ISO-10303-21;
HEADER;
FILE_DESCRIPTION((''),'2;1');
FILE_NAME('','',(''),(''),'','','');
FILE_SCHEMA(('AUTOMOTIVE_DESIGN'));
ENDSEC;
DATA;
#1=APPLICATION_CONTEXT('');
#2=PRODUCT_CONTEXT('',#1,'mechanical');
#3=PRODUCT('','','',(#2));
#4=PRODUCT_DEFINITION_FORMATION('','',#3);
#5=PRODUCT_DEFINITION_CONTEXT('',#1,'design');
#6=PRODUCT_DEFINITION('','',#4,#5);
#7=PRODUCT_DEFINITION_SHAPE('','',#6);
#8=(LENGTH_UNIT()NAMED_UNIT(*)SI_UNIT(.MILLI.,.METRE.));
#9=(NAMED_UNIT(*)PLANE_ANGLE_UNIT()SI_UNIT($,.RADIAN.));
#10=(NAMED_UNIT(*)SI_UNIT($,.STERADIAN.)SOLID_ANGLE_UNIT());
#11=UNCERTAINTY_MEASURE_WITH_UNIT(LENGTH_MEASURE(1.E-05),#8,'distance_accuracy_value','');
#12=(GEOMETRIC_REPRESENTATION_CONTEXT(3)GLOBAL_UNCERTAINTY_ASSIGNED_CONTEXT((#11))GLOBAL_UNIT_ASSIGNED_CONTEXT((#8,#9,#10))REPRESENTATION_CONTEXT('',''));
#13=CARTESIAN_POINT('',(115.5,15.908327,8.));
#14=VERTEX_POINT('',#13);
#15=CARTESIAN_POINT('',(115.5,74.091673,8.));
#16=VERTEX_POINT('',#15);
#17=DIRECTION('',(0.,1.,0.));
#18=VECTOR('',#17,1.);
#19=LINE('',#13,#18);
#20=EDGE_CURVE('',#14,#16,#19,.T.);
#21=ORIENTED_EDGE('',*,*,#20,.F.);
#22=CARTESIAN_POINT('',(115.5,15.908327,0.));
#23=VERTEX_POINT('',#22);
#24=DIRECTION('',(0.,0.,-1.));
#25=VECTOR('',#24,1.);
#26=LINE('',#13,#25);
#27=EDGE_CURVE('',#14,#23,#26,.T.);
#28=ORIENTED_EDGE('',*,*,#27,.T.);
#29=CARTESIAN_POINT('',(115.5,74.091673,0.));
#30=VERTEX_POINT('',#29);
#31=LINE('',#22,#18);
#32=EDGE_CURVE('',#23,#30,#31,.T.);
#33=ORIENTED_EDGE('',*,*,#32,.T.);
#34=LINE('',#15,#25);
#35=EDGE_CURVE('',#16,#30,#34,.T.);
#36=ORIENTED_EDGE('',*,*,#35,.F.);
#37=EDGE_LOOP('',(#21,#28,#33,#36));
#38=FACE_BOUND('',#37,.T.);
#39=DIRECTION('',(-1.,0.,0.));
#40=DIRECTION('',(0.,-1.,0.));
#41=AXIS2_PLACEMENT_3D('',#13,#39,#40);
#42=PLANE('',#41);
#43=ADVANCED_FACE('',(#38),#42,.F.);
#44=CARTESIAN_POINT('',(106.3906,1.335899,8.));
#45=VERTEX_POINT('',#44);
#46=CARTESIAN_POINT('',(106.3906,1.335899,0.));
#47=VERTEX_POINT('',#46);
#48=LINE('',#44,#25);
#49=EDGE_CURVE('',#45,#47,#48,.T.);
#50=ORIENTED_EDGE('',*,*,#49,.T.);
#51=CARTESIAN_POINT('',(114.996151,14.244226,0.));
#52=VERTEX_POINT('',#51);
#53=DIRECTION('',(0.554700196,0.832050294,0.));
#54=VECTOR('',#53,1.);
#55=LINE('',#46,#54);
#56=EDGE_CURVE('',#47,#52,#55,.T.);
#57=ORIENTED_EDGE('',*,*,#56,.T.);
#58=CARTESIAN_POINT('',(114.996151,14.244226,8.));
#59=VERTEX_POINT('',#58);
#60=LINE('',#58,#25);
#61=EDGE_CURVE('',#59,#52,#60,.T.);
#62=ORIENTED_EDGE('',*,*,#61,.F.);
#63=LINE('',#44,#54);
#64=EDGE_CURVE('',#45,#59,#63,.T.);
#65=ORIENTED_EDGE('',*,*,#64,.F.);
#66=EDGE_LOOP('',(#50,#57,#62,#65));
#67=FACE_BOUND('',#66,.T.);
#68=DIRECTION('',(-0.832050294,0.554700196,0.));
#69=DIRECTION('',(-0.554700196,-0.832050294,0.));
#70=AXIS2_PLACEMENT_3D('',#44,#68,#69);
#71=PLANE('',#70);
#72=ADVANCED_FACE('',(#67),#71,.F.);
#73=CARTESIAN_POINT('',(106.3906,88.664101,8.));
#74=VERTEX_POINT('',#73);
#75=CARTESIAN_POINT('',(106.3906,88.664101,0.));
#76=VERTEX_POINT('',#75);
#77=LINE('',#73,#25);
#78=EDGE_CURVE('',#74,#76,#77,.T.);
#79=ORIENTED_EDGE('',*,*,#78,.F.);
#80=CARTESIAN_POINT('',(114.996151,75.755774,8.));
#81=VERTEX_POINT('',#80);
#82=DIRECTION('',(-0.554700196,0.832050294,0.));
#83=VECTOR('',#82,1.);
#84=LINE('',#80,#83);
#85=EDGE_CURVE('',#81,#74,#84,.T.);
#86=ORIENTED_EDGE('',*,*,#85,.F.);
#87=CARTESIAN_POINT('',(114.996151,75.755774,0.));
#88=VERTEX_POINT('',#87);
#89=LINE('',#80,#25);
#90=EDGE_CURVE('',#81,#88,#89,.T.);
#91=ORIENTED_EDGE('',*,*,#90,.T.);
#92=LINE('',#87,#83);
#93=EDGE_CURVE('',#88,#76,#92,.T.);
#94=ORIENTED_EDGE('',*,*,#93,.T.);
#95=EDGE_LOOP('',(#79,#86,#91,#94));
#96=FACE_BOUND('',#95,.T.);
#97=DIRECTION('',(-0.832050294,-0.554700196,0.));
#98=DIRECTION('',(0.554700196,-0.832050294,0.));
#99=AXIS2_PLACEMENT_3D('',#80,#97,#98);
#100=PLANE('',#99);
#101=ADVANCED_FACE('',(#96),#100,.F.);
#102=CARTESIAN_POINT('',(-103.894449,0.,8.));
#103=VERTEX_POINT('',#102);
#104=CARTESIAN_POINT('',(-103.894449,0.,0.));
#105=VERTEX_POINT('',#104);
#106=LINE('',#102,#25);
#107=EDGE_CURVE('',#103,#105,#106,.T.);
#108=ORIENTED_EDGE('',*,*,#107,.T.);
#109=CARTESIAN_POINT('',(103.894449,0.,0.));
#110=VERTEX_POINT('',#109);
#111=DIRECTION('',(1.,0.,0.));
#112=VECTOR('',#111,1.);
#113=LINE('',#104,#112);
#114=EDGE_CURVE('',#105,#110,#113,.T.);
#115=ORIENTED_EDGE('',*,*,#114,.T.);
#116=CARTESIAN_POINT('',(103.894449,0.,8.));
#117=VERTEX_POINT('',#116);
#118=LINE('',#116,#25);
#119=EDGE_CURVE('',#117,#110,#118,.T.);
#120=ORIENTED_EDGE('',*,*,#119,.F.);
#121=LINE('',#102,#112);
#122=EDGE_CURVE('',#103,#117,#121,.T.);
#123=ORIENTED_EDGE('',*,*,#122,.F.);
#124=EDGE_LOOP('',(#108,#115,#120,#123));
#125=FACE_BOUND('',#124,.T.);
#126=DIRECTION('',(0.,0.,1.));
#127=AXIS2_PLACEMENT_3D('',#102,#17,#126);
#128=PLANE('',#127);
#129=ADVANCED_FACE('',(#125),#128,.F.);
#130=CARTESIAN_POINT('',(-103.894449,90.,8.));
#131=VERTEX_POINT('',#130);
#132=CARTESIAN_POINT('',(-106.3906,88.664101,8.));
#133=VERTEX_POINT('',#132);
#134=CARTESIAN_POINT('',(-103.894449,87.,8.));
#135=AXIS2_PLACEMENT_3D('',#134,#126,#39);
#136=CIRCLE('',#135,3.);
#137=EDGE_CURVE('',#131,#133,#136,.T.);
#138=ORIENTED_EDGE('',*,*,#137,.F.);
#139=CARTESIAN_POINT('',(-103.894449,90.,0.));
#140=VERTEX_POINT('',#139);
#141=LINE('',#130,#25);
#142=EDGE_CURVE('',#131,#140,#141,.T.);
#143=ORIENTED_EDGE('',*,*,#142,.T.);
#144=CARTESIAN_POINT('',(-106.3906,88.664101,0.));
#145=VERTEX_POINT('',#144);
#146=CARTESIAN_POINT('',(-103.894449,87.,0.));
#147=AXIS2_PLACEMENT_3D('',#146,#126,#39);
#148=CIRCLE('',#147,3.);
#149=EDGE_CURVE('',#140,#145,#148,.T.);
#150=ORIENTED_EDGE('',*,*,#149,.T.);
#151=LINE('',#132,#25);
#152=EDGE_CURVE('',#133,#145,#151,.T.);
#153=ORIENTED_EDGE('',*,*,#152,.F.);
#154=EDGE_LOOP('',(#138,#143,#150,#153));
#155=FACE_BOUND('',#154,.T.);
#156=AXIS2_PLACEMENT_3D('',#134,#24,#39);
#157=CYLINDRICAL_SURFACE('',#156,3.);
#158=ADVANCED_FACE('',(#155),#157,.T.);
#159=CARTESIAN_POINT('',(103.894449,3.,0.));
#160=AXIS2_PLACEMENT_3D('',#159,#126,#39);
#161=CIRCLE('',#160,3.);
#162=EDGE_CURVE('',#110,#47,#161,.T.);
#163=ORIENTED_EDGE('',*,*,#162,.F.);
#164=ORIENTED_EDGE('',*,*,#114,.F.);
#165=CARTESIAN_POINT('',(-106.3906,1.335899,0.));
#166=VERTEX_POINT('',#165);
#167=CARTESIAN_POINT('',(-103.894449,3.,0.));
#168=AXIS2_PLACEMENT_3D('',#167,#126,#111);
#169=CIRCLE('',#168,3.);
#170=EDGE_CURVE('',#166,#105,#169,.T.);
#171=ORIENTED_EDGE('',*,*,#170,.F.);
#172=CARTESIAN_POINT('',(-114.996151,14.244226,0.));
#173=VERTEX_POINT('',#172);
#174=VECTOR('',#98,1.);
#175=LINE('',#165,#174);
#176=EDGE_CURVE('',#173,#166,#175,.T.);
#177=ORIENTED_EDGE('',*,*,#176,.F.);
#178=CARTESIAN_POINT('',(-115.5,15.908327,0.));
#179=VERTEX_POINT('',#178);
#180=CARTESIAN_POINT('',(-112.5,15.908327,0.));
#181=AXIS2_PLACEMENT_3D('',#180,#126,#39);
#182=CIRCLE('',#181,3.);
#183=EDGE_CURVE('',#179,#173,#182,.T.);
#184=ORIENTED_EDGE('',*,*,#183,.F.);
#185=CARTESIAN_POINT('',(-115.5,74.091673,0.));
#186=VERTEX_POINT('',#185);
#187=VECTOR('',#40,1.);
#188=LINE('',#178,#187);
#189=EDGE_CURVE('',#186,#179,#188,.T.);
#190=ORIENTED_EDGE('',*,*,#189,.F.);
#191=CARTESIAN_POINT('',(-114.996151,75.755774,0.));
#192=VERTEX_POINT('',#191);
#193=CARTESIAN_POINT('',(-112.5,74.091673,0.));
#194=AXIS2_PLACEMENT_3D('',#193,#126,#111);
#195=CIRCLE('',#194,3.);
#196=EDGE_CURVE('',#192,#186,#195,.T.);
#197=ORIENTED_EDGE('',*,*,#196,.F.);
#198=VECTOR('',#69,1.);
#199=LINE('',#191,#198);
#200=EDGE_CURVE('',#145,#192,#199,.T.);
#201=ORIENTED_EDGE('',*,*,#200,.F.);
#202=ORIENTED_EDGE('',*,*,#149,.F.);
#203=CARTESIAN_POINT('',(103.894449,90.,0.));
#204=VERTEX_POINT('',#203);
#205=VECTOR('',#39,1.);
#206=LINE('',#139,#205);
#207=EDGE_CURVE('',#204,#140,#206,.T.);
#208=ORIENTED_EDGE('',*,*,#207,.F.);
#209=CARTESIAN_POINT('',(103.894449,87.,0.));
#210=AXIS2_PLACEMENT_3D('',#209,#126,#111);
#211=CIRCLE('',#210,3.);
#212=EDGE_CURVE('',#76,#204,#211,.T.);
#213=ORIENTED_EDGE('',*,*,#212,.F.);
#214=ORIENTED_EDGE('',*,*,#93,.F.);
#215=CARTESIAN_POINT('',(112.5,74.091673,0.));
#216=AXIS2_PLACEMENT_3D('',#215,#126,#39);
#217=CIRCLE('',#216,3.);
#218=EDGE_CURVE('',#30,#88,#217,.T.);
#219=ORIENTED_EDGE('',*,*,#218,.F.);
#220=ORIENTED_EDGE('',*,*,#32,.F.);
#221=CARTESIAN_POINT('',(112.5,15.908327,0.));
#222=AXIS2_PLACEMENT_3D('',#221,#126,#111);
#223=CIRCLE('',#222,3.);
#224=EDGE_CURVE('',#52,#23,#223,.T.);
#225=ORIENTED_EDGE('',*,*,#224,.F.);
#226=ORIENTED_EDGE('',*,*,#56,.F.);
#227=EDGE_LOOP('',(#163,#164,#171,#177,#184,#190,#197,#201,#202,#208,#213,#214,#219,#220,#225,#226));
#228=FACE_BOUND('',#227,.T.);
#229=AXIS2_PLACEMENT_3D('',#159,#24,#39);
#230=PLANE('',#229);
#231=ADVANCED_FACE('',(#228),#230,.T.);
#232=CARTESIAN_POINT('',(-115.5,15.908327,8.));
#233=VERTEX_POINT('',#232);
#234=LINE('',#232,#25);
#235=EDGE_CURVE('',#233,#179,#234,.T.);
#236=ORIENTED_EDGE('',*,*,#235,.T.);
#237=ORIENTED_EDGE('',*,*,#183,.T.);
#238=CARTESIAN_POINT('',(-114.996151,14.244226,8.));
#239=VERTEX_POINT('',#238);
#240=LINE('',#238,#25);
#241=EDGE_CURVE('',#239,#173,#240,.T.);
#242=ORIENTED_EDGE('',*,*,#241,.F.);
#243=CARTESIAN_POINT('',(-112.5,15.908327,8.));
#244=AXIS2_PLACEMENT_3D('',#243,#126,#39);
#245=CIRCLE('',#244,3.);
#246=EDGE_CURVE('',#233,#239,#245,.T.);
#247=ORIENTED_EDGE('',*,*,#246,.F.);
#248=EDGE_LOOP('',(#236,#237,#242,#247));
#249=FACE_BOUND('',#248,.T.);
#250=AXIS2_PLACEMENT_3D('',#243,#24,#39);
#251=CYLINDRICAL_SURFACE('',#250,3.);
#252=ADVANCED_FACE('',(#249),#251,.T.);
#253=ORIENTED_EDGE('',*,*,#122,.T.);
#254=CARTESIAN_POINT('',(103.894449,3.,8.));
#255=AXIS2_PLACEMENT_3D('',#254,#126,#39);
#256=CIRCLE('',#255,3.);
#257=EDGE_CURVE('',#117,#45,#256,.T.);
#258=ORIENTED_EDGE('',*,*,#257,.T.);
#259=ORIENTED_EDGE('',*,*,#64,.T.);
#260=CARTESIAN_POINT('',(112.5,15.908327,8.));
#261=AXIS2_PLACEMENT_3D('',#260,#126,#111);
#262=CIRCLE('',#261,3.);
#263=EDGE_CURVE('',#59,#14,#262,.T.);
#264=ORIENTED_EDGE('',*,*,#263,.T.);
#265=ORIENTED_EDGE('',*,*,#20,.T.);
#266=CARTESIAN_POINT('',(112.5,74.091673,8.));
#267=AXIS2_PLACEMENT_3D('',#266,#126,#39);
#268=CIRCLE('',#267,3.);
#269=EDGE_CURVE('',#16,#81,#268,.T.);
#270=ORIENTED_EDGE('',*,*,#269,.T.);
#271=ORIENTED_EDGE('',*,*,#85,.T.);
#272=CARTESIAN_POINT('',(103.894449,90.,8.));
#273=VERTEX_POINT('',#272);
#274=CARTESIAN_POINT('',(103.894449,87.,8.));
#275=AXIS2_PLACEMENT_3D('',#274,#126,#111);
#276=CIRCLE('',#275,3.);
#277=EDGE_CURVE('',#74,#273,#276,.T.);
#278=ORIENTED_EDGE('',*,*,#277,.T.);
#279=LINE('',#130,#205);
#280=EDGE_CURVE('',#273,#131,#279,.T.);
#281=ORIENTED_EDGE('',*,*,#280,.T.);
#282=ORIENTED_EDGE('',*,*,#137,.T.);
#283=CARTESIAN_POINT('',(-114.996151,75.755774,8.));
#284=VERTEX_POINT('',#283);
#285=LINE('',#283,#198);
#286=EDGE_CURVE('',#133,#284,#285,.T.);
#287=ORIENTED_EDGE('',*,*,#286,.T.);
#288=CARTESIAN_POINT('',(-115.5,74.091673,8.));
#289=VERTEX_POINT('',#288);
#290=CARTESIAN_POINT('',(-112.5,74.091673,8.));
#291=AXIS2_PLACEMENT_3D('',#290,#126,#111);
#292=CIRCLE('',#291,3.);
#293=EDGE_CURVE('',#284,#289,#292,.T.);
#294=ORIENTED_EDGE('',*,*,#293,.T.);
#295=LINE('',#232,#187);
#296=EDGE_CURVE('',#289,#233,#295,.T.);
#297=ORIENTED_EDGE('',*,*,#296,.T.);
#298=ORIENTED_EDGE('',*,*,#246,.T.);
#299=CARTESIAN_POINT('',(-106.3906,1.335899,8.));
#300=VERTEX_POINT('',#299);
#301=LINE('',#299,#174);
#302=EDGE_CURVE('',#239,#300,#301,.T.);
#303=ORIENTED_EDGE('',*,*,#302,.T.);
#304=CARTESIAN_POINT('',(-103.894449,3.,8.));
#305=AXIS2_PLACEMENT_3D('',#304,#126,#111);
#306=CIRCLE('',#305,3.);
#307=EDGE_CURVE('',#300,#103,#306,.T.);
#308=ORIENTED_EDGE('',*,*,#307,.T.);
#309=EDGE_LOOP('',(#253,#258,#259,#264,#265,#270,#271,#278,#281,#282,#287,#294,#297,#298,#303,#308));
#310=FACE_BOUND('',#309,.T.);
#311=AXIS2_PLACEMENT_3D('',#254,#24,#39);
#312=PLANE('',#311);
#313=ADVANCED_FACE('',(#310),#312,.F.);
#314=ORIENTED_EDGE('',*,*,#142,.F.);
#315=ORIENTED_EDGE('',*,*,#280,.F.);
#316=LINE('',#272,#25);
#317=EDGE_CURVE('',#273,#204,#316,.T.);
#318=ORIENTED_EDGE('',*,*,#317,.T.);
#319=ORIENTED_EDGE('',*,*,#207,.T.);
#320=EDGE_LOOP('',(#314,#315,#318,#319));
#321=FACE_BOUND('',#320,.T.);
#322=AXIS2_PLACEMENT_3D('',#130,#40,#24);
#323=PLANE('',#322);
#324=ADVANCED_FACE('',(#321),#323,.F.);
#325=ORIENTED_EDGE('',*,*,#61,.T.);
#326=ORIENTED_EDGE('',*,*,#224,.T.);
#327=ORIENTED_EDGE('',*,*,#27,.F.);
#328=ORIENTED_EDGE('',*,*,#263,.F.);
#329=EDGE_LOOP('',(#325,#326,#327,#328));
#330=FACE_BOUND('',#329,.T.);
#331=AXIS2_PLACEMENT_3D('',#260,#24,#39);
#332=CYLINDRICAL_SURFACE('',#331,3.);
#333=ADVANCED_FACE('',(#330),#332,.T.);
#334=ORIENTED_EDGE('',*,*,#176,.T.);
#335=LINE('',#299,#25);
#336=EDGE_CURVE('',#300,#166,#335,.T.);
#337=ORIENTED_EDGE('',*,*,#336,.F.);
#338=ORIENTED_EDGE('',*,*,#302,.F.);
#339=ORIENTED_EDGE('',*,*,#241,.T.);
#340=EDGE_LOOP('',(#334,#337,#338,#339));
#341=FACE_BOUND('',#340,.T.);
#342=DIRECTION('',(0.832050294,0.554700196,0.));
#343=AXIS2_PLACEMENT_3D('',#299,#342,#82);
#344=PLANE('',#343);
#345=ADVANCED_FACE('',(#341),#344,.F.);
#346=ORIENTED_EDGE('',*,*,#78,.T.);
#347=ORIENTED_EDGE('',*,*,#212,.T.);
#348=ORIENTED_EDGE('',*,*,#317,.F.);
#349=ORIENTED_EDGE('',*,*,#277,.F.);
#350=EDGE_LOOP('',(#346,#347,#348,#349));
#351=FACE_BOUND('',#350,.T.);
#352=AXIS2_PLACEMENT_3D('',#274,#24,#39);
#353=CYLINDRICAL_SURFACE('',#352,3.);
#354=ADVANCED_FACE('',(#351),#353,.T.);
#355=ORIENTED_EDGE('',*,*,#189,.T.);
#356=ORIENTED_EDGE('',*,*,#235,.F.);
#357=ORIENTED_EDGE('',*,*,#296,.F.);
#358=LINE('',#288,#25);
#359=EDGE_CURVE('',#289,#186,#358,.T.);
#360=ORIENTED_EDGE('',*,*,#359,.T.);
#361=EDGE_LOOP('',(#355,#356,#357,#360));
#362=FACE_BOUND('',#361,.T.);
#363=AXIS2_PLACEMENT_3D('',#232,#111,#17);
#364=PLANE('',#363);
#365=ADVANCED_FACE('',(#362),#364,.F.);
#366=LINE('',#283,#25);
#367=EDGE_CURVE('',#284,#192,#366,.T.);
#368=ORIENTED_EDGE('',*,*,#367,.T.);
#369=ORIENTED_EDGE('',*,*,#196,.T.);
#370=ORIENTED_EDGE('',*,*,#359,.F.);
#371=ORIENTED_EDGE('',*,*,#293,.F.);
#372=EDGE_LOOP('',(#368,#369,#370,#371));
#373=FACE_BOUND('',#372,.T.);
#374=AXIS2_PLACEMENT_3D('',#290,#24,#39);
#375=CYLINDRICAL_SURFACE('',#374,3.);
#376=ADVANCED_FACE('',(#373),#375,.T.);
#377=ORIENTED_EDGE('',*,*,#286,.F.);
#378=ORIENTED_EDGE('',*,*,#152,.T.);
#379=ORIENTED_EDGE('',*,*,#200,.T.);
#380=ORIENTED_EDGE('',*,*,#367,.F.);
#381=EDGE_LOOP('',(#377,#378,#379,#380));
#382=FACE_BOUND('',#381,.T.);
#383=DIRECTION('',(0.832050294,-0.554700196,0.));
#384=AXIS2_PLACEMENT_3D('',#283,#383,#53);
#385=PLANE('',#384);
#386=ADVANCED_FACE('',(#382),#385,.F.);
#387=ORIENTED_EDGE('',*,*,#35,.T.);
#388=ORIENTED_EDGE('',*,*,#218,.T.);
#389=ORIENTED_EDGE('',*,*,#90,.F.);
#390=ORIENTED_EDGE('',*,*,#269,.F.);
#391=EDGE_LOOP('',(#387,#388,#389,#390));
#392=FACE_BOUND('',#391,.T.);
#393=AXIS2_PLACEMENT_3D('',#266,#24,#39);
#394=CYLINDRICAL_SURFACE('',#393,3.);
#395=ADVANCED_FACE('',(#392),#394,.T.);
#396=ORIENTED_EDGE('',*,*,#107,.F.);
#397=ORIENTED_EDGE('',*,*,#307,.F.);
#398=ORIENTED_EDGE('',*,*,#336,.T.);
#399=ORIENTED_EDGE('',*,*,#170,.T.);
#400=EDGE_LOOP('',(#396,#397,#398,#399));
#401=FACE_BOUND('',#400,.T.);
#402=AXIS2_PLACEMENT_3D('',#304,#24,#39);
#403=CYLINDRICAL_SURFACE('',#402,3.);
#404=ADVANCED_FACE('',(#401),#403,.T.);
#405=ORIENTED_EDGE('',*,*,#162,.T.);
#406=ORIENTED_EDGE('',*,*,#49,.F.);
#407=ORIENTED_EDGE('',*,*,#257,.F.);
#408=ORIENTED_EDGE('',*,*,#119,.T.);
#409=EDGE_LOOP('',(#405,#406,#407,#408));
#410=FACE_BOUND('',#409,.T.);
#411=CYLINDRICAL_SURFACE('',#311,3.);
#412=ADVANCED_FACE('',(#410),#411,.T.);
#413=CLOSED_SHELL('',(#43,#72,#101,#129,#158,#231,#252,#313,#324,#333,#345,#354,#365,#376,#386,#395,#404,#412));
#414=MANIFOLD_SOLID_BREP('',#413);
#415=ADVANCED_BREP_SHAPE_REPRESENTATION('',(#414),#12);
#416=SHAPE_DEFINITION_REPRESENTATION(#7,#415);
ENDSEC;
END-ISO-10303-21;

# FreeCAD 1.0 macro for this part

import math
import FreeCAD as App
import Part
import Sketcher
from FreeCAD import Vector

doc = App.newDocument("Part")
params = doc.addObject("Spreadsheet::Sheet", "Params")
for row, (alias, value) in enumerate([
    ("sketch1_radius", "3 mm"),
    ("pad1_length", "8 mm"),
], start=1):
    params.set(f"A{row}", alias)
    params.set(f"B{row}", "=" + value)
    params.setAlias(f"B{row}", alias)

body = doc.addObject("PartDesign::Body", "Body")

# Sketch on XY plane
sketch1 = body.newObject("Sketcher::SketchObject", "Sketch")
sketch1.AttachmentSupport = (doc.getObject("XY_Plane"), [""])
sketch1.MapMode = "FlatFace"
sketch1.addGeometry([
    Part.LineSegment(Vector(106.4, 1.3, 0), Vector(115, 14.2, 0)),  # 0
    Part.ArcOfCircle(Part.Circle(Vector(112.5, 15.9, 0), Vector(0, 0, 1), 3), math.radians(-34), math.radians(0)),  # 1
    Part.LineSegment(Vector(115.5, 15.9, 0), Vector(115.5, 74.1, 0)),  # 2
    Part.ArcOfCircle(Part.Circle(Vector(112.5, 74.1, 0), Vector(0, 0, 1), 3), math.radians(0), math.radians(34)),  # 3
    Part.LineSegment(Vector(115, 75.8, 0), Vector(106.4, 88.7, 0)),  # 4
    Part.ArcOfCircle(Part.Circle(Vector(103.9, 87, 0), Vector(0, 0, 1), 3), math.radians(34), math.radians(90)),  # 5
    Part.LineSegment(Vector(103.9, 90, 0), Vector(-103.9, 90, 0)),  # 6
    Part.ArcOfCircle(Part.Circle(Vector(-103.9, 87, 0), Vector(0, 0, 1), 3), math.radians(90), math.radians(146)),  # 7
    Part.LineSegment(Vector(-106.4, 88.7, 0), Vector(-115, 75.8, 0)),  # 8
    Part.ArcOfCircle(Part.Circle(Vector(-112.5, 74.1, 0), Vector(0, 0, 1), 3), math.radians(146), math.radians(180)),  # 9
    Part.LineSegment(Vector(-115.5, 74.1, 0), Vector(-115.5, 15.9, 0)),  # 10
    Part.ArcOfCircle(Part.Circle(Vector(-112.5, 15.9, 0), Vector(0, 0, 1), 3), math.radians(-180), math.radians(-146)),  # 11
    Part.LineSegment(Vector(-115, 14.2, 0), Vector(-106.4, 1.3, 0)),  # 12
    Part.ArcOfCircle(Part.Circle(Vector(-103.9, 3, 0), Vector(0, 0, 1), 3), math.radians(-146), math.radians(-90)),  # 13
    Part.LineSegment(Vector(-103.9, 0, 0), Vector(103.9, 0, 0)),  # 14
    Part.ArcOfCircle(Part.Circle(Vector(103.9, 3, 0), Vector(0, 0, 1), 3), math.radians(-90), math.radians(-34)),  # 15
], False)
sketch1.addConstraint([
    Sketcher.Constraint("Tangent", 0, 2, 1, 1),
    Sketcher.Constraint("Tangent", 1, 2, 2, 1),
    Sketcher.Constraint("Tangent", 2, 2, 3, 1),
    Sketcher.Constraint("Tangent", 3, 2, 4, 1),
    Sketcher.Constraint("Tangent", 4, 2, 5, 1),
    Sketcher.Constraint("Tangent", 5, 2, 6, 1),
    Sketcher.Constraint("Tangent", 6, 2, 7, 1),
    Sketcher.Constraint("Tangent", 7, 2, 8, 1),
    Sketcher.Constraint("Tangent", 8, 2, 9, 1),
    Sketcher.Constraint("Tangent", 9, 2, 10, 1),
    Sketcher.Constraint("Tangent", 10, 2, 11, 1),
    Sketcher.Constraint("Tangent", 11, 2, 12, 1),
    Sketcher.Constraint("Tangent", 12, 2, 13, 1),
    Sketcher.Constraint("Tangent", 13, 2, 14, 1),
    Sketcher.Constraint("Tangent", 14, 2, 15, 1),
    Sketcher.Constraint("Tangent", 15, 2, 0, 1),
    Sketcher.Constraint("Vertical", 2),
    Sketcher.Constraint("Horizontal", 6),
    Sketcher.Constraint("Vertical", 10),
    Sketcher.Constraint("Horizontal", 14),
    Sketcher.Constraint("Equal", 1, 3),
    Sketcher.Constraint("Equal", 3, 5),
    Sketcher.Constraint("Equal", 5, 7),
    Sketcher.Constraint("Equal", 7, 9),
    Sketcher.Constraint("Equal", 9, 11),
    Sketcher.Constraint("Equal", 11, 13),
    Sketcher.Constraint("Equal", 13, 15),
    Sketcher.Constraint("Symmetric", 13, 2, 14, 2, -1, 1),
    Sketcher.Constraint("Symmetric", 3, 3, 9, 3, -2),
    Sketcher.Constraint("Parallel", 0, 8),
    Sketcher.Constraint("Parallel", 4, 12),
    Sketcher.Constraint("Horizontal", 1, 3, 11, 3),
    Sketcher.Constraint("Vertical", 7, 3, 13, 3),
    Sketcher.Constraint("Radius", 1, 3.0),
    Sketcher.Constraint("DistanceY", -1, 1, 5, 3, 87.0),
    Sketcher.Constraint("DistanceX", 9, 3, 3, 3, 225.0),
    Sketcher.Constraint("DistanceX", -1, 1, 4, 2, 106.3906),
    Sketcher.Constraint("DistanceY", -1, 1, 4, 2, 88.664101),
])
sketch1.setExpression("Constraints[33]", "Params.sketch1_radius")
pad1 = body.newObject("PartDesign::Pad", "Pad")
pad1.Profile = sketch1
pad1.setExpression("Length", "Params.pad1_length")

doc.recompute()
